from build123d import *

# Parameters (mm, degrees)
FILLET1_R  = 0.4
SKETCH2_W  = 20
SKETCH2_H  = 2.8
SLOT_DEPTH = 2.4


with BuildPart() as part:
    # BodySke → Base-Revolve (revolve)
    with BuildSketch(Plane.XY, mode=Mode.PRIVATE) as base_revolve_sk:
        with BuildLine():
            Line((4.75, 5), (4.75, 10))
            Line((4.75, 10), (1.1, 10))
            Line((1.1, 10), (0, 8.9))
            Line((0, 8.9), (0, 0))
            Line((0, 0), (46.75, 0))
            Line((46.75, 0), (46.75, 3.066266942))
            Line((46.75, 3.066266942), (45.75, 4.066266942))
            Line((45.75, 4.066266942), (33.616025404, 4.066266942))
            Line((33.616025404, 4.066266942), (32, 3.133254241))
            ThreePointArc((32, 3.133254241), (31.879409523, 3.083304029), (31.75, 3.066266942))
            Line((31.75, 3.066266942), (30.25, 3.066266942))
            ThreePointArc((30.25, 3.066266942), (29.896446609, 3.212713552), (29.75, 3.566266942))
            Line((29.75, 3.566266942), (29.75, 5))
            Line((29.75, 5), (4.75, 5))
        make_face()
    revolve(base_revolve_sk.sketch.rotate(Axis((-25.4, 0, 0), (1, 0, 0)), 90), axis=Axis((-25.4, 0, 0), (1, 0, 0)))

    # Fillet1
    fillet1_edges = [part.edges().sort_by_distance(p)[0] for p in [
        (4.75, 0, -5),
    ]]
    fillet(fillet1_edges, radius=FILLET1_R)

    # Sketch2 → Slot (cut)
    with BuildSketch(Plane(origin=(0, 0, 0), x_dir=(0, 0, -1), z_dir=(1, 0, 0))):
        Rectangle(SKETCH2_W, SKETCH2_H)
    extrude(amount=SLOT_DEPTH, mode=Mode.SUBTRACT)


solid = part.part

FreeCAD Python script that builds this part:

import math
import FreeCAD as App
import Part
import Sketcher
from FreeCAD import Vector
Q = App.Units.Quantity


def edges_at(feature, points):
    """Names of the edges that pass closest to the given points."""
    edges = feature.Shape.Edges
    near = lambda p: min(range(len(edges)), key=lambda i: edges[i].distToShape(Part.Vertex(*p))[0])
    return sorted({f"Edge{near(p) + 1}" for p in points})


def add_polygon(sketch, points):
    """Adds a closed chain of lines whose ends are joined by coincident constraints."""
    first, n = sketch.GeometryCount, len(points)
    for a, b in zip(points, points[1:] + points[:1]):
        sketch.addGeometry(Part.LineSegment(App.Vector(*a, 0), App.Vector(*b, 0)), False)
    for i in range(n):
        sketch.addConstraint(Sketcher.Constraint("Coincident", first + i, 2, first + (i + 1) % n, 1))

doc = App.newDocument("Part")
body = doc.addObject("PartDesign::Body", "Body")

sketch1 = body.newObject("Sketcher::SketchObject", "Sketch")
sketch1.AttachmentSupport = (doc.getObject("XY_Plane"), [""])
sketch1.MapMode = "FlatFace"
sketch1.addGeometry(Part.LineSegment(Vector(4.75, 5, 0), Vector(4.75, 10, 0)), False)
sketch1.addGeometry(Part.LineSegment(Vector(4.75, 10, 0), Vector(1.1, 10, 0)), False)
sketch1.addGeometry(Part.LineSegment(Vector(1.1, 10, 0), Vector(0, 8.9, 0)), False)
sketch1.addGeometry(Part.LineSegment(Vector(0, 8.9, 0), Vector(0, 0, 0)), False)
sketch1.addGeometry(Part.LineSegment(Vector(0, 0, 0), Vector(46.75, 0, 0)), False)
sketch1.addGeometry(Part.LineSegment(Vector(46.75, 0, 0), Vector(46.75, 3.066267, 0)), False)
sketch1.addGeometry(Part.LineSegment(Vector(46.75, 3.066267, 0), Vector(45.75, 4.066267, 0)), False)
sketch1.addGeometry(Part.LineSegment(Vector(45.75, 4.066267, 0), Vector(33.616025, 4.066267, 0)), False)
sketch1.addGeometry(Part.LineSegment(Vector(33.616025, 4.066267, 0), Vector(32, 3.133254, 0)), False)
sketch1.addGeometry(Part.ArcOfCircle(Part.Circle(Vector(31.75, 3.566267, 0), Vector(0, 0, 1), 0.5), math.radians(-90), math.radians(-59.999999)), False)
sketch1.addGeometry(Part.LineSegment(Vector(31.75, 3.066267, 0), Vector(30.25, 3.066267, 0)), False)
sketch1.addGeometry(Part.ArcOfCircle(Part.Circle(Vector(30.25, 3.566267, 0), Vector(0, 0, 1), 0.5), math.radians(180), math.radians(270)), False)
sketch1.addGeometry(Part.LineSegment(Vector(29.75, 3.566267, 0), Vector(29.75, 5, 0)), False)
sketch1.addGeometry(Part.LineSegment(Vector(29.75, 5, 0), Vector(4.75, 5, 0)), False)
sketch1.addConstraint(Sketcher.Constraint("Coincident", 0, 2, 1, 1))
sketch1.addConstraint(Sketcher.Constraint("Coincident", 1, 2, 2, 1))
sketch1.addConstraint(Sketcher.Constraint("Coincident", 2, 2, 3, 1))
sketch1.addConstraint(Sketcher.Constraint("Coincident", 3, 2, 4, 1))
sketch1.addConstraint(Sketcher.Constraint("Coincident", 4, 2, 5, 1))
sketch1.addConstraint(Sketcher.Constraint("Coincident", 5, 2, 6, 1))
sketch1.addConstraint(Sketcher.Constraint("Coincident", 6, 2, 7, 1))
sketch1.addConstraint(Sketcher.Constraint("Coincident", 7, 2, 8, 1))
sketch1.addConstraint(Sketcher.Constraint("Tangent", 8, 2, 9, 2))
sketch1.addConstraint(Sketcher.Constraint("Tangent", 9, 1, 10, 1))
sketch1.addConstraint(Sketcher.Constraint("Tangent", 10, 2, 11, 2))
sketch1.addConstraint(Sketcher.Constraint("Tangent", 11, 1, 12, 1))
sketch1.addConstraint(Sketcher.Constraint("Coincident", 12, 2, 13, 1))
sketch1.addConstraint(Sketcher.Constraint("Coincident", 13, 2, 0, 1))
sketch1.addConstraint(Sketcher.Constraint("Vertical", 0))
sketch1.addConstraint(Sketcher.Constraint("Horizontal", 1))
sketch1.addConstraint(Sketcher.Constraint("Vertical", 3))
sketch1.addConstraint(Sketcher.Constraint("Horizontal", 4))
sketch1.addConstraint(Sketcher.Constraint("Vertical", 5))
sketch1.addConstraint(Sketcher.Constraint("Horizontal", 7))
sketch1.addConstraint(Sketcher.Constraint("Horizontal", 10))
sketch1.addConstraint(Sketcher.Constraint("Vertical", 12))
sketch1.addConstraint(Sketcher.Constraint("Horizontal", 13))
sketch1.addConstraint(Sketcher.Constraint("Coincident", 3, 2, -1, 1))
sketch1.addConstraint(Sketcher.Constraint("Equal", 9, 11))
sketch1.addConstraint(Sketcher.Constraint("Perpendicular", 2, 6))
sketch1.addConstraint(Sketcher.Constraint("Horizontal", 5, 2, 9, 1))
sketch1.addConstraint(Sketcher.Constraint("Radius", 9, 0.5))
sketch1.addConstraint(Sketcher.Constraint("DistanceX", 13, 2, 13, 1, 25.0))
sketch1.addConstraint(Sketcher.Constraint("DistanceY", 0, 1, 0, 2, 5.0))
sketch1.addConstraint(Sketcher.Constraint("Angle", 2, Q("-135 deg")))
sketch1.addConstraint(Sketcher.Constraint("Angle", 8, Q("-150 deg")))
sketch1.addConstraint(Sketcher.Constraint("DistanceX", 10, 2, 10, 1, 1.5))
sketch1.addConstraint(Sketcher.Constraint("DistanceY", 3, 2, 3, 1, 8.9))
sketch1.addConstraint(Sketcher.Constraint("DistanceY", -1, 1, 0, 2, 10.0))
sketch1.addConstraint(Sketcher.Constraint("DistanceX", -1, 1, 8, 2, 32.0))
sketch1.addConstraint(Sketcher.Constraint("DistanceX", 9, 3, 4, 2, 15.0))
sketch1.addConstraint(Sketcher.Constraint("DistanceX", 6, 2, 5, 2, 1.0))
sketch1.addConstraint(Sketcher.Constraint("DistanceY", 5, 1, 5, 2, 3.066267))
revolution = body.newObject("PartDesign::Revolution", "Revolution")
revolution.Profile = sketch1
revolution.ReferenceAxis = (sketch1, ["H_Axis"])
revolution.Angle = 360
doc.recompute()

fillet = body.newObject("PartDesign::Fillet", "Fillet")
fillet.Base = (revolution, edges_at(revolution, [(4.75, 0, -5)]))
fillet.Radius = 0.4

sketch2 = body.newObject("Sketcher::SketchObject", "Sketch001")
sketch2.AttachmentSupport = (doc.getObject("YZ_Plane"), [""])
sketch2.MapMode = "FlatFace"
add_polygon(sketch2, [(1.4, 10), (-1.4, 10), (-1.4, -10), (1.4, -10)])
sketch2.addConstraint(Sketcher.Constraint("Horizontal", 0))
sketch2.addConstraint(Sketcher.Constraint("Vertical", 1))
sketch2.addConstraint(Sketcher.Constraint("Horizontal", 2))
sketch2.addConstraint(Sketcher.Constraint("Vertical", 3))
sketch2.addConstraint(Sketcher.Constraint("Symmetric", 0, 2, 2, 2, -1, 1))
sketch2.addConstraint(Sketcher.Constraint("DistanceY", 1, 2, 1, 1, 20.0))
sketch2.addConstraint(Sketcher.Constraint("DistanceX", 0, 2, 0, 1, 2.8))
pocket1 = body.newObject("PartDesign::Pocket", "Pocket")
pocket1.Profile = sketch2
pocket1.Length = 2.4
pocket1.Reversed = True

doc.recompute()
